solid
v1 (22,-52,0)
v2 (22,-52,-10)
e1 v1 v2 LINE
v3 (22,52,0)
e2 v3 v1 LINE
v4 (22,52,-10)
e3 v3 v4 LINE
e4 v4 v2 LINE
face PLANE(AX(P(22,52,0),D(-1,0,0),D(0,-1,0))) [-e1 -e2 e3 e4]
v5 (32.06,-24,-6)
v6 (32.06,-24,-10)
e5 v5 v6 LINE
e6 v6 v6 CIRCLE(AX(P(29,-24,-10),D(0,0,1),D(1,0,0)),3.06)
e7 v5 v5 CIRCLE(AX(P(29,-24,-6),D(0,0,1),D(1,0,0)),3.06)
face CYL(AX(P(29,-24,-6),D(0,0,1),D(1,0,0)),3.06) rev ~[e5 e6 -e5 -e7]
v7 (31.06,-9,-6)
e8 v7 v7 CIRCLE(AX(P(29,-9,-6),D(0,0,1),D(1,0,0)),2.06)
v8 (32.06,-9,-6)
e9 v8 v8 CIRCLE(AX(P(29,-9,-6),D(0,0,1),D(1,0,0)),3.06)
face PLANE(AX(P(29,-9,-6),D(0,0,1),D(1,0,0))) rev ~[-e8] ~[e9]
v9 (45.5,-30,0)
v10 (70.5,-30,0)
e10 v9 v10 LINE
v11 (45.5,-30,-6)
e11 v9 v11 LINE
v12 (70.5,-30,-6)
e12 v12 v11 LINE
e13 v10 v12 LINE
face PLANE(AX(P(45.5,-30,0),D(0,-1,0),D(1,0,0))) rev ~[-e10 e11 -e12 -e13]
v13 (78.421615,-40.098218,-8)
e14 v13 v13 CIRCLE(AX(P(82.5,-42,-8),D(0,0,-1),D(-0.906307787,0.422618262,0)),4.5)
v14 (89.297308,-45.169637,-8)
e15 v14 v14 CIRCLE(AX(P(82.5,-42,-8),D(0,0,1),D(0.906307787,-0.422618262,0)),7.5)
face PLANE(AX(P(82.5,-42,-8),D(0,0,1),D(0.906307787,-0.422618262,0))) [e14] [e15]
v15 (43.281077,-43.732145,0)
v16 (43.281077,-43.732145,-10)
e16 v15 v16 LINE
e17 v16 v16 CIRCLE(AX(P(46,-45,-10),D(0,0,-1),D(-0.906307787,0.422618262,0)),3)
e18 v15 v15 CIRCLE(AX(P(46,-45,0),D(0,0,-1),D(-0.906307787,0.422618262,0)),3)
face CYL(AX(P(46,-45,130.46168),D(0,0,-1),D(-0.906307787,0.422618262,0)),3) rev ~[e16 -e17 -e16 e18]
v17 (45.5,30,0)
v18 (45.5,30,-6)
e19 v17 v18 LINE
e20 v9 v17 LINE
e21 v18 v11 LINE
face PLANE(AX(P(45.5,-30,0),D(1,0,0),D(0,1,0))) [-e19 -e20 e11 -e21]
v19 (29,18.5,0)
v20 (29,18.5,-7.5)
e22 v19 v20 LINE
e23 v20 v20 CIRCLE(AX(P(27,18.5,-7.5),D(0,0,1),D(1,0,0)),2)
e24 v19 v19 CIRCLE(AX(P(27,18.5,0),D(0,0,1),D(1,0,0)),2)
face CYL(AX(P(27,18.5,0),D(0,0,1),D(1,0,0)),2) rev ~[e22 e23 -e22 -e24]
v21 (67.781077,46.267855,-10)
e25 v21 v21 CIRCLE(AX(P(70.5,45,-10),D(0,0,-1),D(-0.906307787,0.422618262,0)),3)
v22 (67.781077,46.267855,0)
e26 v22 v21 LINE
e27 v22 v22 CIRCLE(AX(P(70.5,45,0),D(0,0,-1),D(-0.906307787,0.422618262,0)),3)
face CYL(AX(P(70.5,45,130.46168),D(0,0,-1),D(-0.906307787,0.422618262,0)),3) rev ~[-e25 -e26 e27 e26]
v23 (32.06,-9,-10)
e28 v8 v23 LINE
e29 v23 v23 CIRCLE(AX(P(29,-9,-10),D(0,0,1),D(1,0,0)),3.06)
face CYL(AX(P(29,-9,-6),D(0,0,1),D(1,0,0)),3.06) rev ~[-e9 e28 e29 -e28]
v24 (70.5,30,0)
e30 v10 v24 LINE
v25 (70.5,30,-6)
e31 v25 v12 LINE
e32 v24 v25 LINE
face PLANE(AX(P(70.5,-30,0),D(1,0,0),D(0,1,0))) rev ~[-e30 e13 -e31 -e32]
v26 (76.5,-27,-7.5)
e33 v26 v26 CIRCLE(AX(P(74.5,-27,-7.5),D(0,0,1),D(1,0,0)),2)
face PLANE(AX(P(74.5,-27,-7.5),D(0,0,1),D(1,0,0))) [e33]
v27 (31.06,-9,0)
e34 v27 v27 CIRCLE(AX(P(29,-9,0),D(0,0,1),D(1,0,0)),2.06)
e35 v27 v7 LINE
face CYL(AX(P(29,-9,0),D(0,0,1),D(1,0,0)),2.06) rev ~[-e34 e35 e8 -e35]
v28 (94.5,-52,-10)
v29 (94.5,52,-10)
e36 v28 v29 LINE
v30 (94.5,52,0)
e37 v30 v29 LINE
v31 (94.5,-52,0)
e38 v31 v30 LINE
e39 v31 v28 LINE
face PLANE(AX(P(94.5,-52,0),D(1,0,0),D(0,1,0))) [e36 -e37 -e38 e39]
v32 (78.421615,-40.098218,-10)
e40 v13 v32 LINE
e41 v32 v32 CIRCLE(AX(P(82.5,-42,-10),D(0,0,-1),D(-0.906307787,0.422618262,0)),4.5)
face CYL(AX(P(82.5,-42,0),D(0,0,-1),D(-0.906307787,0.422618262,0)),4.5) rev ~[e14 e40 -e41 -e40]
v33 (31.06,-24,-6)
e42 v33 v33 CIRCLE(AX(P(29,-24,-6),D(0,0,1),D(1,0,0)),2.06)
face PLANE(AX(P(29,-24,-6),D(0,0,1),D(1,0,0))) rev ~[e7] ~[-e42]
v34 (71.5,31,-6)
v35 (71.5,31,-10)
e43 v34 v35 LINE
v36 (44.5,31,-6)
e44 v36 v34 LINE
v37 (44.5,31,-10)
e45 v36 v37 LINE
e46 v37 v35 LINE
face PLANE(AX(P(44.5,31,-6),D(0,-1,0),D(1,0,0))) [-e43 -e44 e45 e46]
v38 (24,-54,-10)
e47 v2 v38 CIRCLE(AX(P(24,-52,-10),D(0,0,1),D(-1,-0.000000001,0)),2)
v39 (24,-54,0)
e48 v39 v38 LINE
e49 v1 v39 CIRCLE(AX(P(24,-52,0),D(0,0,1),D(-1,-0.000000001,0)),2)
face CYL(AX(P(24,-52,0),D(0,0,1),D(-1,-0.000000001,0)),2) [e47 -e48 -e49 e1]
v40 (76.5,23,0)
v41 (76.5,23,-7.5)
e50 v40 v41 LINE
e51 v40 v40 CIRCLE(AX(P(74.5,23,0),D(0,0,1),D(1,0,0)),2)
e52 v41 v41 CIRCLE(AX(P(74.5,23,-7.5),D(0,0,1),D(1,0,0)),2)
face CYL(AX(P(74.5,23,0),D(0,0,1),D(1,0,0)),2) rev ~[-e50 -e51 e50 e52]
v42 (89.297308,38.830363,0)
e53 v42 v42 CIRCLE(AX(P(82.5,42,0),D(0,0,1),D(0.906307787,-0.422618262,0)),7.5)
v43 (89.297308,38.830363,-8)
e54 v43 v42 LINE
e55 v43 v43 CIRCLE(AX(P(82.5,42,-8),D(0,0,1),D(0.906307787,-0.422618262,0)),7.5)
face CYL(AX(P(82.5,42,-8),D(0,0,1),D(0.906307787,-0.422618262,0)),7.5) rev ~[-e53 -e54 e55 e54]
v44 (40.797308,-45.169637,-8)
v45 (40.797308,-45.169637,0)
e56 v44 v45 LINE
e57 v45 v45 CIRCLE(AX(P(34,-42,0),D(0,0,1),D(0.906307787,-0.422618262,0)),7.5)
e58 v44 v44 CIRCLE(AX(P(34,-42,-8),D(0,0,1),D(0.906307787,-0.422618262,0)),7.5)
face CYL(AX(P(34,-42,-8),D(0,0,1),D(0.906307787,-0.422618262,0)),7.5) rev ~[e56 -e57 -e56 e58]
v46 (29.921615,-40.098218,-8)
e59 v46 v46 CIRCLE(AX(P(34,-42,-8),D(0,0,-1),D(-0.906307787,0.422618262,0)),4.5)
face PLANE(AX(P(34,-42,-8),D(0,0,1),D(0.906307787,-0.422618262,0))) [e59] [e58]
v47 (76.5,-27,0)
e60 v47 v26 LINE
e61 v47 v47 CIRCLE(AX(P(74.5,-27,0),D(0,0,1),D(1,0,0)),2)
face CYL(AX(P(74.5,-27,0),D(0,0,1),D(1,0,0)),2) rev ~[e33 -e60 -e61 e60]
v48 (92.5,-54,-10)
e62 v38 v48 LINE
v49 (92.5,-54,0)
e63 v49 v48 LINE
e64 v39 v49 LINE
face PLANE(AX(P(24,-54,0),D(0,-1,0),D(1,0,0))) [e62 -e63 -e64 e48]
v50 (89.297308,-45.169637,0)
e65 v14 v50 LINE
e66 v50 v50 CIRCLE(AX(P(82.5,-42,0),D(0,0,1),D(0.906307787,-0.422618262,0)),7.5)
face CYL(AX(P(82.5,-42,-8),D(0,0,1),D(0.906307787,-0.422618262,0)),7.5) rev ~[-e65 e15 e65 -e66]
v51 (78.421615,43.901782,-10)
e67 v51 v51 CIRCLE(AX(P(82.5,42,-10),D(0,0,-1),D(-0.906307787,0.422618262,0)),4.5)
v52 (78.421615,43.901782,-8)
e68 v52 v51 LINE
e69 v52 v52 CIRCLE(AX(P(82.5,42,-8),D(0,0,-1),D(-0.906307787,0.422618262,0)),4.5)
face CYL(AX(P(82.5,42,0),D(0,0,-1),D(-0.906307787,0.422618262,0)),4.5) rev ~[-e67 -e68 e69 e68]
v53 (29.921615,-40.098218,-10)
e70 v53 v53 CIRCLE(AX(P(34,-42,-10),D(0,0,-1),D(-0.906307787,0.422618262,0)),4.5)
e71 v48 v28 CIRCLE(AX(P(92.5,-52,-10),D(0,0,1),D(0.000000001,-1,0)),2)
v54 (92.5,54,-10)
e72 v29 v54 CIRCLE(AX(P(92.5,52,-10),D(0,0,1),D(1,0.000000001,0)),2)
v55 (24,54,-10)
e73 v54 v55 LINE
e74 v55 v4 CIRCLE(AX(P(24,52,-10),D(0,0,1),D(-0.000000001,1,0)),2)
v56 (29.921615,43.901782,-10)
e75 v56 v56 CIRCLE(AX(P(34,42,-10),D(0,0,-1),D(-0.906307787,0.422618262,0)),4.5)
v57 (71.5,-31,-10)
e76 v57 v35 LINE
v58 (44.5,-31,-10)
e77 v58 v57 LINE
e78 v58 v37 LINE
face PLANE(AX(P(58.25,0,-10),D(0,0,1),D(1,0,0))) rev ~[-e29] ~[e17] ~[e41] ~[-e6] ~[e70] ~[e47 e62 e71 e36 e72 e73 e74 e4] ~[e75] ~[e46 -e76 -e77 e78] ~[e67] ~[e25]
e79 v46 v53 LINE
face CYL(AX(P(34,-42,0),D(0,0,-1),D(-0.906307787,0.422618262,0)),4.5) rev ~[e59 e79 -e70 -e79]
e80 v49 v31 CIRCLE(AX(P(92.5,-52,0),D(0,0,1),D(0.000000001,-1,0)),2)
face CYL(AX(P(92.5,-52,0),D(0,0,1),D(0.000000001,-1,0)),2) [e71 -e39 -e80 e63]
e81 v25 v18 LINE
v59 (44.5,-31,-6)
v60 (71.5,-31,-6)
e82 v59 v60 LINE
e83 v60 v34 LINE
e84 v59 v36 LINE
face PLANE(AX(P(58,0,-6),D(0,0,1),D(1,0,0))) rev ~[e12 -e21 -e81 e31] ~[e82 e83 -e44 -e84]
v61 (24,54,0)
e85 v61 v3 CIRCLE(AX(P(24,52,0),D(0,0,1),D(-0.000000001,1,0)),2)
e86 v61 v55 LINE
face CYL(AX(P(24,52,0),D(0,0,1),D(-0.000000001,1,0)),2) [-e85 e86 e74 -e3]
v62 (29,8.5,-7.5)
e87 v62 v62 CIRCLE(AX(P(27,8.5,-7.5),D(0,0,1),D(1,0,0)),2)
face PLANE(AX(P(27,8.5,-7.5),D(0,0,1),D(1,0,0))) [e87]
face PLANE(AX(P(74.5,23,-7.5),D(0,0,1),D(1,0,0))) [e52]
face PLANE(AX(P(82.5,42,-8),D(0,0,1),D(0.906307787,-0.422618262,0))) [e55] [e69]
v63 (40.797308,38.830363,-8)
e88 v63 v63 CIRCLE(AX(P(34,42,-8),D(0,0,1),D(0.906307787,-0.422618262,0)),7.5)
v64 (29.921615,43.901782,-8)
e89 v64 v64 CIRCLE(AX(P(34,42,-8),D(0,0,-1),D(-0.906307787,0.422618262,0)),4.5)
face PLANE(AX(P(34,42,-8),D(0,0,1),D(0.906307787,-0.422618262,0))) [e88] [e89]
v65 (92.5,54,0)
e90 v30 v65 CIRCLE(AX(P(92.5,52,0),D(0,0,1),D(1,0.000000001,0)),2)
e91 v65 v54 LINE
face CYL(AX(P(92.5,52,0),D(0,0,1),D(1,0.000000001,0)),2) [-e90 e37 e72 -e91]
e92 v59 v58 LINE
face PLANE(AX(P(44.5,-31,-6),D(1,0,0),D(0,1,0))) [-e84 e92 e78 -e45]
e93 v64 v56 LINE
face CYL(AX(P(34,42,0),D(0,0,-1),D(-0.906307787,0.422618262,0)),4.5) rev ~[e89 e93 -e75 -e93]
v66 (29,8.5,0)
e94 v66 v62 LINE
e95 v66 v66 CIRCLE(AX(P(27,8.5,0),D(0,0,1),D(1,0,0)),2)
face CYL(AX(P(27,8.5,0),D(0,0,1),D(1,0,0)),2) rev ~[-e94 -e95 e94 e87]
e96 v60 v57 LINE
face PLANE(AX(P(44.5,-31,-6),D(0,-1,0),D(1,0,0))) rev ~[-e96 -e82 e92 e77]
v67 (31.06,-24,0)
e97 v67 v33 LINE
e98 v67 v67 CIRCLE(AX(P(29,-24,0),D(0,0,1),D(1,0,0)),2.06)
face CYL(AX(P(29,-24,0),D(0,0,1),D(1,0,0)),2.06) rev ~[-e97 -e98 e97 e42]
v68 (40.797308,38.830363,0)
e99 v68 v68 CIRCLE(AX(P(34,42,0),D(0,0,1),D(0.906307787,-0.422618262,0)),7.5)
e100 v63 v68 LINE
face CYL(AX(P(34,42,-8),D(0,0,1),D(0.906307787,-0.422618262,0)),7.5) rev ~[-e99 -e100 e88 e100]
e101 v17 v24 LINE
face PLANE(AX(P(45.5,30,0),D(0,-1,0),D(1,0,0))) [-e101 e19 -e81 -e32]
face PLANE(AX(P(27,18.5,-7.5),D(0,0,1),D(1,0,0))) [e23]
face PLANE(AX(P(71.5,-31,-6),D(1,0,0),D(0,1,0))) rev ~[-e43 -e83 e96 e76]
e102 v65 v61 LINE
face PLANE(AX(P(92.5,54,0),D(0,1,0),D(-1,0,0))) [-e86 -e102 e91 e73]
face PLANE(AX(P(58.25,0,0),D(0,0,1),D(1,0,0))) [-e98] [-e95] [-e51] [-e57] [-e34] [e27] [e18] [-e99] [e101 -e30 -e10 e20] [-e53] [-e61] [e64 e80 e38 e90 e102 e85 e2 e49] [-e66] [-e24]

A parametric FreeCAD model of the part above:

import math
import FreeCAD as App
import Part
import Sketcher


def add_polygon(sketch, points):
    """Adds a closed chain of lines whose ends are joined by coincident constraints."""
    first, n = sketch.GeometryCount, len(points)
    for a, b in zip(points, points[1:] + points[:1]):
        sketch.addGeometry(Part.LineSegment(App.Vector(*a, 0), App.Vector(*b, 0)), False)
    for i in range(n):
        sketch.addConstraint(Sketcher.Constraint("Coincident", first + i, 2, first + (i + 1) % n, 1))

doc = App.newDocument("Part")
params = doc.addObject("Spreadsheet::Sheet", "Params")
for row, (alias, value) in enumerate([
    ("sketch1_radius", "2 mm"),
    ("sketch1_diameter", "4.12 mm"),
    ("sketch1_width", "25 mm"),
    ("sketch1_height", "104 mm"),
    ("sketch1_height2", "60 mm"),
    ("pad1_length", "10 mm"),
    ("sketch2_diameter", "6.12 mm"),
    ("sketch2_width", "27 mm"),
    ("sketch2_height", "62 mm"),
    ("pocket1_length", "4 mm"),
    ("sketch3_diameter", "4 mm"),
    ("pocket2_length", "7.5 mm"),
    ("sketch4_diameter", "9 mm"),
    ("hole_diameter", "9 mm"),
    ("hole_cbore_diameter", "15 mm"),
    ("hole_cbore_depth", "8 mm"),
    ("sketch5_diameter", "6 mm"),
    ("hole2_diameter", "6 mm"),
], start=1):
    params.set(f"A{row}", alias)
    params.set(f"B{row}", "=" + value)
    params.setAlias(f"B{row}", alias)

body = doc.addObject("PartDesign::Body", "Body")

# Sketch on XY plane
sketch1 = body.newObject("Sketcher::SketchObject", "Sketch")
sketch1.AttachmentSupport = (doc.getObject("XY_Plane"), [""])
sketch1.MapMode = "FlatFace"
sketch1.addGeometry(Part.LineSegment(App.Vector(22, 52, 0), App.Vector(22, -52, 0)), False)  # 0
sketch1.addGeometry(Part.ArcOfCircle(Part.Circle(App.Vector(24, -52, 0), App.Vector(0, 0, 1), 2), math.radians(-180), math.radians(-90)), False)  # 1
sketch1.addGeometry(Part.LineSegment(App.Vector(24, -54, 0), App.Vector(92.5, -54, 0)), False)  # 2
sketch1.addGeometry(Part.ArcOfCircle(Part.Circle(App.Vector(92.5, -52, 0), App.Vector(0, 0, 1), 2), math.radians(-90), math.radians(0)), False)  # 3
sketch1.addGeometry(Part.LineSegment(App.Vector(94.5, -52, 0), App.Vector(94.5, 52, 0)), False)  # 4
sketch1.addGeometry(Part.ArcOfCircle(Part.Circle(App.Vector(92.5, 52, 0), App.Vector(0, 0, 1), 2), math.radians(0), math.radians(90)), False)  # 5
sketch1.addGeometry(Part.LineSegment(App.Vector(92.5, 54, 0), App.Vector(24, 54, 0)), False)  # 6
sketch1.addGeometry(Part.ArcOfCircle(Part.Circle(App.Vector(24, 52, 0), App.Vector(0, 0, 1), 2), math.radians(90), math.radians(180)), False)  # 7
sketch1.addGeometry(Part.Circle(App.Vector(29, -24, 0), App.Vector(0, 0, 1), 2.06), False)  # 8
sketch1.addGeometry(Part.Circle(App.Vector(29, -9, 0), App.Vector(0, 0, 1), 2.06), False)  # 9
add_polygon(sketch1, [(70.5, -30), (45.5, -30), (45.5, 30), (70.5, 30)])  # lines 10-13
sketch1.addConstraint(Sketcher.Constraint("Tangent", 0, 2, 1, 1))
sketch1.addConstraint(Sketcher.Constraint("Tangent", 1, 2, 2, 1))
sketch1.addConstraint(Sketcher.Constraint("Tangent", 2, 2, 3, 1))
sketch1.addConstraint(Sketcher.Constraint("Tangent", 3, 2, 4, 1))
sketch1.addConstraint(Sketcher.Constraint("Tangent", 4, 2, 5, 1))
sketch1.addConstraint(Sketcher.Constraint("Tangent", 5, 2, 6, 1))
sketch1.addConstraint(Sketcher.Constraint("Tangent", 6, 2, 7, 1))
sketch1.addConstraint(Sketcher.Constraint("Tangent", 7, 2, 0, 1))
sketch1.addConstraint(Sketcher.Constraint("Vertical", 0))
sketch1.addConstraint(Sketcher.Constraint("Horizontal", 2))
sketch1.addConstraint(Sketcher.Constraint("Vertical", 4))
sketch1.addConstraint(Sketcher.Constraint("Horizontal", 6))
sketch1.addConstraint(Sketcher.Constraint("Horizontal", 10))
sketch1.addConstraint(Sketcher.Constraint("Vertical", 11))
sketch1.addConstraint(Sketcher.Constraint("Horizontal", 12))
sketch1.addConstraint(Sketcher.Constraint("Vertical", 13))
sketch1.addConstraint(Sketcher.Constraint("Equal", 1, 3))
sketch1.addConstraint(Sketcher.Constraint("Equal", 3, 5))
sketch1.addConstraint(Sketcher.Constraint("Equal", 5, 7))
sketch1.addConstraint(Sketcher.Constraint("Equal", 8, 9))
sketch1.addConstraint(Sketcher.Constraint("Vertical", 8, 3, 9, 3))
sketch1.addConstraint(Sketcher.Constraint("Radius", 1, 2.0))
sketch1.addConstraint(Sketcher.Constraint("Diameter", 8, 4.12))
sketch1.addConstraint(Sketcher.Constraint("DistanceX", 10, 2, 10, 1, 25.0))
sketch1.addConstraint(Sketcher.Constraint("DistanceY", 0, 2, 0, 1, 104.0))
sketch1.addConstraint(Sketcher.Constraint("DistanceY", 11, 1, 11, 2, 60.0))
sketch1.addConstraint(Sketcher.Constraint("DistanceX", 2, 1, 2, 2, 68.5))
sketch1.addConstraint(Sketcher.Constraint("DistanceX", -1, 1, 1, 3, 24.0))
sketch1.addConstraint(Sketcher.Constraint("DistanceY", 1, 3, -1, 1, 52.0))
sketch1.addConstraint(Sketcher.Constraint("DistanceX", -1, 1, 8, 3, 29.0))
sketch1.addConstraint(Sketcher.Constraint("DistanceY", 8, 3, -1, 1, 24.0))
sketch1.addConstraint(Sketcher.Constraint("DistanceY", 9, 3, -1, 1, 9.0))
sketch1.addConstraint(Sketcher.Constraint("DistanceY", 10, 2, -1, 1, 30.0))
sketch1.addConstraint(Sketcher.Constraint("DistanceX", 11, 2, 5, 3, 47.0))
sketch1.setExpression("Constraints[25]", "Params.sketch1_radius")
sketch1.setExpression("Constraints[26]", "Params.sketch1_diameter")
sketch1.setExpression("Constraints[27]", "Params.sketch1_width")
sketch1.setExpression("Constraints[28]", "Params.sketch1_height")
sketch1.setExpression("Constraints[29]", "Params.sketch1_height2")
pad1 = body.newObject("PartDesign::Pad", "Pad")
pad1.Profile = sketch1
pad1.setExpression("Length", "Params.pad1_length")
pad1.Reversed = True

# Sketch on XY plane
sketch2 = body.newObject("Sketcher::SketchObject", "Sketch001")
sketch2.AttachmentSupport = (doc.getObject("XY_Plane"), [""])
sketch2.MapMode = "FlatFace"
sketch2.AttachmentOffset = App.Placement(App.Vector(0, 0, -6), App.Rotation())
sketch2.addGeometry(Part.Circle(App.Vector(29, -9, 0), App.Vector(0, 0, 1), 3.06), False)  # 0
sketch2.addGeometry(Part.Circle(App.Vector(29, -24, 0), App.Vector(0, 0, 1), 3.06), False)  # 1
add_polygon(sketch2, [(44.5, 31), (44.5, -31), (71.5, -31), (71.5, 31)])  # lines 2-5
sketch2.addConstraint(Sketcher.Constraint("Vertical", 2))
sketch2.addConstraint(Sketcher.Constraint("Horizontal", 3))
sketch2.addConstraint(Sketcher.Constraint("Vertical", 4))
sketch2.addConstraint(Sketcher.Constraint("Horizontal", 5))
sketch2.addConstraint(Sketcher.Constraint("Equal", 0, 1))
sketch2.addConstraint(Sketcher.Constraint("Vertical", 0, 3, 1, 3))
sketch2.addConstraint(Sketcher.Constraint("Diameter", 0, 6.12))
sketch2.addConstraint(Sketcher.Constraint("DistanceX", 3, 1, 3, 2, 27.0))
sketch2.addConstraint(Sketcher.Constraint("DistanceY", 2, 2, 2, 1, 62.0))
sketch2.addConstraint(Sketcher.Constraint("DistanceX", -1, 1, 0, 3, 29.0))
sketch2.addConstraint(Sketcher.Constraint("DistanceY", 0, 3, -1, 1, 9.0))
sketch2.addConstraint(Sketcher.Constraint("DistanceY", 1, 3, -1, 1, 24.0))
sketch2.addConstraint(Sketcher.Constraint("DistanceY", 2, 2, -1, 1, 31.0))
sketch2.addConstraint(Sketcher.Constraint("DistanceX", -1, 1, 2, 2, 44.5))
sketch2.setExpression("Constraints[10]", "Params.sketch2_diameter")
sketch2.setExpression("Constraints[11]", "Params.sketch2_width")
sketch2.setExpression("Constraints[12]", "Params.sketch2_height")
pocket1 = body.newObject("PartDesign::Pocket", "Pocket")
pocket1.Profile = sketch2
pocket1.setExpression("Length", "Params.pocket1_length")

# Sketch on XY plane
sketch3 = body.newObject("Sketcher::SketchObject", "Sketch002")
sketch3.AttachmentSupport = (doc.getObject("XY_Plane"), [""])
sketch3.MapMode = "FlatFace"
sketch3.addGeometry(Part.Circle(App.Vector(27, 8.5, 0), App.Vector(0, 0, 1), 2), False)
sketch3.addGeometry(Part.Circle(App.Vector(27, 18.5, 0), App.Vector(0, 0, 1), 2), False)
sketch3.addGeometry(Part.Circle(App.Vector(74.5, 23, 0), App.Vector(0, 0, 1), 2), False)
sketch3.addGeometry(Part.Circle(App.Vector(74.5, -27, 0), App.Vector(0, 0, 1), 2), False)
sketch3.addConstraint(Sketcher.Constraint("Equal", 0, 1))
sketch3.addConstraint(Sketcher.Constraint("Equal", 1, 2))
sketch3.addConstraint(Sketcher.Constraint("Equal", 2, 3))
sketch3.addConstraint(Sketcher.Constraint("Vertical", 0, 3, 1, 3))
sketch3.addConstraint(Sketcher.Constraint("Vertical", 2, 3, 3, 3))
sketch3.addConstraint(Sketcher.Constraint("Diameter", 0, 4.0))
sketch3.addConstraint(Sketcher.Constraint("DistanceX", -1, 1, 0, 3, 27.0))
sketch3.addConstraint(Sketcher.Constraint("DistanceY", -1, 1, 2, 3, 23.0))
sketch3.addConstraint(Sketcher.Constraint("DistanceY", 3, 3, -1, 1, 27.0))
sketch3.addConstraint(Sketcher.Constraint("DistanceY", 0, 3, 1, 3, 10.0))
sketch3.addConstraint(Sketcher.Constraint("DistanceY", -1, 1, 0, 3, 8.5))
sketch3.addConstraint(Sketcher.Constraint("DistanceX", -1, 1, 2, 3, 74.5))
sketch3.setExpression("Constraints[5]", "Params.sketch3_diameter")
pocket2 = body.newObject("PartDesign::Pocket", "Pocket001")
pocket2.Profile = sketch3
pocket2.setExpression("Length", "Params.pocket2_length")

# Sketch on XY plane
sketch4 = body.newObject("Sketcher::SketchObject", "Sketch003")
sketch4.AttachmentSupport = (doc.getObject("XY_Plane"), [""])
sketch4.MapMode = "FlatFace"
sketch4.addGeometry(Part.Circle(App.Vector(82.5, 42, 0), App.Vector(0, 0, 1), 4.5), False)
sketch4.addGeometry(Part.Circle(App.Vector(34, 42, 0), App.Vector(0, 0, 1), 4.5), False)
sketch4.addGeometry(Part.Circle(App.Vector(34, -42, 0), App.Vector(0, 0, 1), 4.5), False)
sketch4.addGeometry(Part.Circle(App.Vector(82.5, -42, 0), App.Vector(0, 0, 1), 4.5), False)
sketch4.addConstraint(Sketcher.Constraint("Equal", 0, 1))
sketch4.addConstraint(Sketcher.Constraint("Equal", 1, 2))
sketch4.addConstraint(Sketcher.Constraint("Equal", 2, 3))
sketch4.addConstraint(Sketcher.Constraint("Symmetric", 1, 3, 2, 3, -1))
sketch4.addConstraint(Sketcher.Constraint("Symmetric", 0, 3, 3, 3, -1))
sketch4.addConstraint(Sketcher.Constraint("Horizontal", 0, 3, 1, 3))
sketch4.addConstraint(Sketcher.Constraint("Diameter", 0, 9.0))
sketch4.addConstraint(Sketcher.Constraint("DistanceY", -1, 1, 0, 3, 42.0))
sketch4.addConstraint(Sketcher.Constraint("DistanceX", -1, 1, 1, 3, 34.0))
sketch4.addConstraint(Sketcher.Constraint("DistanceX", -1, 1, 0, 3, 82.5))
sketch4.setExpression("Constraints[6]", "Params.sketch4_diameter")
doc.recompute()
hole = body.newObject("PartDesign::Hole", "Hole")
hole.Profile = sketch4
hole.ThreadType = "None"
hole.setExpression("Diameter", "Params.hole_diameter")
hole.DepthType = "ThroughAll"
hole.HoleCutType = "Counterbore"
hole.setExpression("HoleCutDiameter", "Params.hole_cbore_diameter")
hole.setExpression("HoleCutDepth", "Params.hole_cbore_depth")

# Sketch on XY plane
sketch5 = body.newObject("Sketcher::SketchObject", "Sketch004")
sketch5.AttachmentSupport = (doc.getObject("XY_Plane"), [""])
sketch5.MapMode = "FlatFace"
sketch5.addGeometry(Part.Circle(App.Vector(70.5, 45, 0), App.Vector(0, 0, 1), 3), False)
sketch5.addGeometry(Part.Circle(App.Vector(46, -45, 0), App.Vector(0, 0, 1), 3), False)
sketch5.addConstraint(Sketcher.Constraint("Equal", 0, 1))
sketch5.addConstraint(Sketcher.Constraint("Diameter", 0, 6.0))
sketch5.addConstraint(Sketcher.Constraint("DistanceY", -1, 1, 0, 3, 45.0))
sketch5.addConstraint(Sketcher.Constraint("DistanceX", -1, 1, 1, 3, 46.0))
sketch5.addConstraint(Sketcher.Constraint("DistanceY", 1, 3, -1, 1, 45.0))
sketch5.addConstraint(Sketcher.Constraint("DistanceX", -1, 1, 0, 3, 70.5))
sketch5.setExpression("Constraints[1]", "Params.sketch5_diameter")
doc.recompute()
hole2 = body.newObject("PartDesign::Hole", "Hole001")
hole2.Profile = sketch5
hole2.ThreadType = "None"
hole2.setExpression("Diameter", "Params.hole2_diameter")
hole2.DepthType = "ThroughAll"

doc.recompute()
